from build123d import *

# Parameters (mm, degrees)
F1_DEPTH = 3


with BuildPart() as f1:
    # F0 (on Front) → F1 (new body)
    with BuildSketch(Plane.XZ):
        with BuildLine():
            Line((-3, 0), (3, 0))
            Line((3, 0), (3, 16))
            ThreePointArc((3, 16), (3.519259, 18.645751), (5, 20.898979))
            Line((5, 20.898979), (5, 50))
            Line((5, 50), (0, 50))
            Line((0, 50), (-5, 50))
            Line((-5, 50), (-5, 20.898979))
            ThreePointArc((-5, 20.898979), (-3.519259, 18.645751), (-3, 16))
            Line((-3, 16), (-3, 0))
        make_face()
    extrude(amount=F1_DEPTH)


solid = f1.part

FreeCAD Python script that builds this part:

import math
import FreeCAD as App
import Part
import Sketcher

doc = App.newDocument("Part")
body = doc.addObject("PartDesign::Body", "Body")

# Sketch on XZ plane
sketch1 = doc.addObject("Sketcher::SketchObject", "Sketch")
body.addObject(sketch1)
sketch1.AttachmentSupport = (doc.XZ_Plane, [""])
sketch1.MapMode = "FlatFace"
sketch1.addGeometry([
    Part.LineSegment(App.Vector(-3, 0, 0), App.Vector(3, 0, 0)),  # 0
    Part.LineSegment(App.Vector(3, 0, 0), App.Vector(3, 16, 0)),  # 1
    Part.ArcOfCircle(Part.Circle(App.Vector(9.999996, 16.000001, 0), App.Vector(0, 0, 1), 6.999996), math.radians(135.584677), math.radians(180.00001)),  # 2
    Part.LineSegment(App.Vector(5, 20.898979, 0), App.Vector(5, 50, 0)),  # 3
    Part.LineSegment(App.Vector(5, 50, 0), App.Vector(-5, 50, 0)),  # 4
    Part.LineSegment(App.Vector(-5, 50, 0), App.Vector(-5, 20.898979, 0)),  # 5
    Part.ArcOfCircle(Part.Circle(App.Vector(-9.999996, 16.000001, 0), App.Vector(0, 0, 1), 6.999996), math.radians(-0.00001), math.radians(44.415323)),  # 6
    Part.LineSegment(App.Vector(-3, 16, 0), App.Vector(-3, 0, 0)),  # 7
], False)
sketch1.addConstraint([
    Sketcher.Constraint("Coincident", 0, 2, 1, 1),
    Sketcher.Constraint("Tangent", 1, 2, 2, 2),
    Sketcher.Constraint("Coincident", 2, 1, 3, 1),
    Sketcher.Constraint("Coincident", 3, 2, 4, 1),
    Sketcher.Constraint("Coincident", 4, 2, 5, 1),
    Sketcher.Constraint("Coincident", 5, 2, 6, 2),
    Sketcher.Constraint("Tangent", 6, 1, 7, 1),
    Sketcher.Constraint("Coincident", 7, 2, 0, 1),
    Sketcher.Constraint("Horizontal", 0),
    Sketcher.Constraint("Vertical", 1),
    Sketcher.Constraint("Vertical", 3),
    Sketcher.Constraint("Horizontal", 4),
    Sketcher.Constraint("Vertical", 5),
    Sketcher.Constraint("Vertical", 7),
    Sketcher.Constraint("Equal", 2, 6),
    Sketcher.Constraint("Symmetric", 0, 2, 7, 2, -1, 1),
    Sketcher.Constraint("Symmetric", 2, 1, 5, 2, -2),
    Sketcher.Constraint("DistanceX", 0, 1, 0, 2, 6.0),
    Sketcher.Constraint("DistanceX", 4, 2, 4, 1, 10.0),
    Sketcher.Constraint("DistanceY", 1, 1, 1, 2, 16.0),
    Sketcher.Constraint("DistanceY", -1, 1, 3, 2, 50.0),
    Sketcher.Constraint("Radius", 2, 6.999996),
])
pad1 = doc.addObject("PartDesign::Pad", "Pad")
body.addObject(pad1)
pad1.Profile = sketch1
pad1.Length = 3

doc.recompute()
